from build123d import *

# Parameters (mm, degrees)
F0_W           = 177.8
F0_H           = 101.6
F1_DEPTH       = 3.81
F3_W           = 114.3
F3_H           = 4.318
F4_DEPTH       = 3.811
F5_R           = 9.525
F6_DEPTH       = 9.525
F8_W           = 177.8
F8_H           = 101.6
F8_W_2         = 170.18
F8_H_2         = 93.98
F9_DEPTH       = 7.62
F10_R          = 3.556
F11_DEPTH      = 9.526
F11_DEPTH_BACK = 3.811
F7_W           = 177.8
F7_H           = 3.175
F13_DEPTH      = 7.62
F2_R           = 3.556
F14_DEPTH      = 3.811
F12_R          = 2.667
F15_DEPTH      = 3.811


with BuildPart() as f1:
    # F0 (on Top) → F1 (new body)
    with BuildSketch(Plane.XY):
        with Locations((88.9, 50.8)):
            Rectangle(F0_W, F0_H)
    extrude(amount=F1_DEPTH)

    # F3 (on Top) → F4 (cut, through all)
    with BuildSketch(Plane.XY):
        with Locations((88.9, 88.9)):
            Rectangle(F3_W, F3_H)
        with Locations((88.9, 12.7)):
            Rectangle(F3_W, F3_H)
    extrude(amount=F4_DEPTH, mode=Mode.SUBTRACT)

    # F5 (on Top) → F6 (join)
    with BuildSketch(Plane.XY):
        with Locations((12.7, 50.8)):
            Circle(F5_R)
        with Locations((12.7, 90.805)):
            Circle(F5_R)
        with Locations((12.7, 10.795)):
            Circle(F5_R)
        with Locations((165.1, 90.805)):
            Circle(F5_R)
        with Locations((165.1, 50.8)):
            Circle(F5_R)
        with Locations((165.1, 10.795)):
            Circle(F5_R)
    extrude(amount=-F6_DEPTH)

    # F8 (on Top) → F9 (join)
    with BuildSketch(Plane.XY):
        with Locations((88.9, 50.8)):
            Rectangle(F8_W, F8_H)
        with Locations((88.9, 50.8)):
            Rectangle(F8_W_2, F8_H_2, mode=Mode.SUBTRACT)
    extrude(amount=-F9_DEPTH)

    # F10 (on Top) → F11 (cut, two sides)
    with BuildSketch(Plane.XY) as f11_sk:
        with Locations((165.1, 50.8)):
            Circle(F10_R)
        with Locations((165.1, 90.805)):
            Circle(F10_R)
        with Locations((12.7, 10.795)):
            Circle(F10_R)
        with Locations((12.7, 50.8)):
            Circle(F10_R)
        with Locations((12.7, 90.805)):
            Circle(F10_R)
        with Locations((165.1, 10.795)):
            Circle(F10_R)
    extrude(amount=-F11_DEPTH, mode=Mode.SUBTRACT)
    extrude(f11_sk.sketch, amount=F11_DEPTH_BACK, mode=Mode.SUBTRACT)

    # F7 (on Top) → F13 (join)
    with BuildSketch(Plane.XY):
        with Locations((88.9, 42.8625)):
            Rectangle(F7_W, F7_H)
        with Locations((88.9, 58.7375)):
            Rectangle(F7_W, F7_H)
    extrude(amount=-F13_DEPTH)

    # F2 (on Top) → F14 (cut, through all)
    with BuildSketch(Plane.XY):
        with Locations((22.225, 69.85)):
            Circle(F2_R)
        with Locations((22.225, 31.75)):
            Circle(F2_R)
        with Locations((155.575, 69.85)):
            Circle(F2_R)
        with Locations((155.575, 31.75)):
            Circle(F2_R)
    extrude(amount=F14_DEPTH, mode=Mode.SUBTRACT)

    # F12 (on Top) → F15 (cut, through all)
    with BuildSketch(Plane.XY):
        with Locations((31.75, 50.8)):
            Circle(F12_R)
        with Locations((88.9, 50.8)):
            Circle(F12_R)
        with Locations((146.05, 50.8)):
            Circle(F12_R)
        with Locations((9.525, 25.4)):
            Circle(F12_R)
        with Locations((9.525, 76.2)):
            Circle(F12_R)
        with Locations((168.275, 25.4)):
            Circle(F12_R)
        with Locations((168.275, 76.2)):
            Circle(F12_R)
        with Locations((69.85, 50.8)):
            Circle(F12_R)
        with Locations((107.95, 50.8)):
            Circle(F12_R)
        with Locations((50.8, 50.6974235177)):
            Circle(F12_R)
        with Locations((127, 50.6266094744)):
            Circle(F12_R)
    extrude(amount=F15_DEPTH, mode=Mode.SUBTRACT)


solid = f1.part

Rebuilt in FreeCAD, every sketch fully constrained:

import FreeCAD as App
import Part
import Sketcher

V = App.Vector
Q = App.Units.Quantity

doc = App.newDocument("Part")
body = doc.addObject("PartDesign::Body", "Body")

# Sketch on XY plane
sketch1 = body.newObject("Sketcher::SketchObject", "Sketch")
sketch1.AttachmentSupport = (doc.getObject("XY_Plane"), [""])
sketch1.MapMode = "FlatFace"
sketch1.addGeometry(Part.LineSegment(V(0, 102, 0), V(0, 0, 0)), False)
sketch1.addGeometry(Part.LineSegment(V(0, 0, 0), V(178, 0, 0)), False)
sketch1.addGeometry(Part.LineSegment(V(178, 0, 0), V(178, 102, 0)), False)
sketch1.addGeometry(Part.LineSegment(V(178, 102, 0), V(0, 102, 0)), False)
sketch1.addConstraint(Sketcher.Constraint("Coincident", 0, 2, 1, 1))
sketch1.addConstraint(Sketcher.Constraint("Coincident", 1, 2, 2, 1))
sketch1.addConstraint(Sketcher.Constraint("Coincident", 2, 2, 3, 1))
sketch1.addConstraint(Sketcher.Constraint("Coincident", 3, 2, 0, 1))
sketch1.addConstraint(Sketcher.Constraint("Vertical", 0))
sketch1.addConstraint(Sketcher.Constraint("Horizontal", 1))
sketch1.addConstraint(Sketcher.Constraint("Vertical", 2))
sketch1.addConstraint(Sketcher.Constraint("Horizontal", 3))
sketch1.addConstraint(Sketcher.Constraint("Coincident", 0, 2, -1, 1))
sketch1.addConstraint(Sketcher.Constraint("DistanceX", 1, 1, 1, 2, Q("7 in")))
sketch1.addConstraint(Sketcher.Constraint("DistanceY", 0, 2, 0, 1, Q("4 in")))
pad1 = body.newObject("PartDesign::Pad", "Pad")
pad1.Profile = sketch1
pad1.Length = Q("0.15 in")

# Sketch on XY plane
sketch2 = body.newObject("Sketcher::SketchObject", "Sketch001")
sketch2.AttachmentSupport = (doc.getObject("XY_Plane"), [""])
sketch2.MapMode = "FlatFace"
sketch2.addGeometry(Part.LineSegment(V(31.8, 91.1, 0), V(31.8, 86.7, 0)), False)
sketch2.addGeometry(Part.LineSegment(V(31.8, 86.7, 0), V(146.1, 86.7, 0)), False)
sketch2.addGeometry(Part.LineSegment(V(146.1, 86.7, 0), V(146.1, 91.1, 0)), False)
sketch2.addGeometry(Part.LineSegment(V(146.1, 91.1, 0), V(31.8, 91.1, 0)), False)
sketch2.addGeometry(Part.LineSegment(V(31.8, 14.9, 0), V(31.8, 10.5, 0)), False)
sketch2.addGeometry(Part.LineSegment(V(31.8, 10.5, 0), V(146.1, 10.5, 0)), False)
sketch2.addGeometry(Part.LineSegment(V(146.1, 10.5, 0), V(146.1, 14.9, 0)), False)
sketch2.addGeometry(Part.LineSegment(V(146.1, 14.9, 0), V(31.8, 14.9, 0)), False)
sketch2.addConstraint(Sketcher.Constraint("Coincident", 0, 2, 1, 1))
sketch2.addConstraint(Sketcher.Constraint("Coincident", 1, 2, 2, 1))
sketch2.addConstraint(Sketcher.Constraint("Coincident", 2, 2, 3, 1))
sketch2.addConstraint(Sketcher.Constraint("Coincident", 3, 2, 0, 1))
sketch2.addConstraint(Sketcher.Constraint("Coincident", 4, 2, 5, 1))
sketch2.addConstraint(Sketcher.Constraint("Coincident", 5, 2, 6, 1))
sketch2.addConstraint(Sketcher.Constraint("Coincident", 6, 2, 7, 1))
sketch2.addConstraint(Sketcher.Constraint("Coincident", 7, 2, 4, 1))
sketch2.addConstraint(Sketcher.Constraint("Vertical", 0))
sketch2.addConstraint(Sketcher.Constraint("Horizontal", 1))
sketch2.addConstraint(Sketcher.Constraint("Vertical", 2))
sketch2.addConstraint(Sketcher.Constraint("Horizontal", 3))
sketch2.addConstraint(Sketcher.Constraint("Vertical", 4))
sketch2.addConstraint(Sketcher.Constraint("Horizontal", 5))
sketch2.addConstraint(Sketcher.Constraint("Vertical", 6))
sketch2.addConstraint(Sketcher.Constraint("Horizontal", 7))
sketch2.addConstraint(Sketcher.Constraint("Vertical", 3, 2, 4, 2))
sketch2.addConstraint(Sketcher.Constraint("Vertical", 2, 2, 5, 2))
sketch2.addConstraint(Sketcher.Constraint("Equal", 2, 4))
sketch2.addConstraint(Sketcher.Constraint("DistanceX", 1, 1, 1, 2, Q("4.5 in")))
sketch2.addConstraint(Sketcher.Constraint("DistanceY", 4, 2, 0, 2, Q("3 in")))
sketch2.addConstraint(Sketcher.Constraint("DistanceY", 0, 2, 0, 1, Q("0.17 in")))
sketch2.addConstraint(Sketcher.Constraint("DistanceX", -1, 1, 0, 2, Q("1.25 in")))
sketch2.addConstraint(Sketcher.Constraint("DistanceY", -1, 1, 0, 2, Q("3.415 in")))
pocket1 = body.newObject("PartDesign::Pocket", "Pocket")
pocket1.Profile = sketch2
pocket1.Type = "ThroughAll"
pocket1.Reversed = True

# Sketch on XY plane
sketch3 = body.newObject("Sketcher::SketchObject", "Sketch002")
sketch3.AttachmentSupport = (doc.getObject("XY_Plane"), [""])
sketch3.MapMode = "FlatFace"
sketch3.addGeometry(Part.Circle(V(13, 51, 0), V(0, 0, 1), 10), False)
sketch3.addGeometry(Part.Circle(V(13, 91, 0), V(0, 0, 1), 10), False)
sketch3.addGeometry(Part.Circle(V(13, 11, 0), V(0, 0, 1), 10), False)
sketch3.addGeometry(Part.Circle(V(165, 91, 0), V(0, 0, 1), 10), False)
sketch3.addGeometry(Part.Circle(V(165, 51, 0), V(0, 0, 1), 10), False)
sketch3.addGeometry(Part.Circle(V(165, 11, 0), V(0, 0, 1), 10), False)
sketch3.addConstraint(Sketcher.Constraint("Equal", 0, 1))
sketch3.addConstraint(Sketcher.Constraint("Equal", 1, 2))
sketch3.addConstraint(Sketcher.Constraint("Equal", 2, 3))
sketch3.addConstraint(Sketcher.Constraint("Equal", 3, 4))
sketch3.addConstraint(Sketcher.Constraint("Equal", 4, 5))
sketch3.addConstraint(Sketcher.Constraint("Horizontal", 1, 3, 3, 3))
sketch3.addConstraint(Sketcher.Constraint("Horizontal", 0, 3, 4, 3))
sketch3.addConstraint(Sketcher.Constraint("Horizontal", 2, 3, 5, 3))
sketch3.addConstraint(Sketcher.Constraint("Vertical", 0, 3, 1, 3))
sketch3.addConstraint(Sketcher.Constraint("Vertical", 1, 3, 2, 3))
sketch3.addConstraint(Sketcher.Constraint("Vertical", 3, 3, 4, 3))
sketch3.addConstraint(Sketcher.Constraint("Vertical", 4, 3, 5, 3))
sketch3.addConstraint(Sketcher.Constraint("Diameter", 0, Q("0.75 in")))
sketch3.addConstraint(Sketcher.Constraint("DistanceY", -1, 1, 0, 3, Q("2 in")))
sketch3.addConstraint(Sketcher.Constraint("DistanceX", 1, 3, 3, 3, Q("6 in")))
sketch3.addConstraint(Sketcher.Constraint("DistanceX", -1, 1, 0, 3, Q("0.5 in")))
sketch3.addConstraint(Sketcher.Constraint("DistanceY", 2, 3, 1, 3, Q("3.15 in")))
sketch3.addConstraint(Sketcher.Constraint("DistanceY", -1, 1, 1, 3, Q("3.575 in")))
pad2 = body.newObject("PartDesign::Pad", "Pad001")
pad2.Profile = sketch3
pad2.Length = Q("0.375 in")
pad2.Reversed = True

# Sketch on XY plane
sketch4 = body.newObject("Sketcher::SketchObject", "Sketch003")
sketch4.AttachmentSupport = (doc.getObject("XY_Plane"), [""])
sketch4.MapMode = "FlatFace"
sketch4.addGeometry(Part.LineSegment(V(0, 102, 0), V(0, 0, 0)), False)
sketch4.addGeometry(Part.LineSegment(V(0, 0, 0), V(178, 0, 0)), False)
sketch4.addGeometry(Part.LineSegment(V(178, 0, 0), V(178, 102, 0)), False)
sketch4.addGeometry(Part.LineSegment(V(178, 102, 0), V(0, 102, 0)), False)
sketch4.addGeometry(Part.LineSegment(V(174, 4, 0), V(4, 4, 0)), False)
sketch4.addGeometry(Part.LineSegment(V(4, 4, 0), V(4, 98, 0)), False)
sketch4.addGeometry(Part.LineSegment(V(4, 98, 0), V(174, 98, 0)), False)
sketch4.addGeometry(Part.LineSegment(V(174, 98, 0), V(174, 4, 0)), False)
sketch4.addConstraint(Sketcher.Constraint("Coincident", 0, 2, 1, 1))
sketch4.addConstraint(Sketcher.Constraint("Coincident", 1, 2, 2, 1))
sketch4.addConstraint(Sketcher.Constraint("Coincident", 2, 2, 3, 1))
sketch4.addConstraint(Sketcher.Constraint("Coincident", 3, 2, 0, 1))
sketch4.addConstraint(Sketcher.Constraint("Coincident", 4, 2, 5, 1))
sketch4.addConstraint(Sketcher.Constraint("Coincident", 5, 2, 6, 1))
sketch4.addConstraint(Sketcher.Constraint("Coincident", 6, 2, 7, 1))
sketch4.addConstraint(Sketcher.Constraint("Coincident", 7, 2, 4, 1))
sketch4.addConstraint(Sketcher.Constraint("Vertical", 0))
sketch4.addConstraint(Sketcher.Constraint("Horizontal", 1))
sketch4.addConstraint(Sketcher.Constraint("Vertical", 2))
sketch4.addConstraint(Sketcher.Constraint("Horizontal", 3))
sketch4.addConstraint(Sketcher.Constraint("Horizontal", 4))
sketch4.addConstraint(Sketcher.Constraint("Vertical", 5))
sketch4.addConstraint(Sketcher.Constraint("Horizontal", 6))
sketch4.addConstraint(Sketcher.Constraint("Vertical", 7))
sketch4.addConstraint(Sketcher.Constraint("Coincident", 0, 2, -1, 1))
sketch4.addConstraint(Sketcher.Constraint("DistanceX", 1, 1, 1, 2, Q("7 in")))
sketch4.addConstraint(Sketcher.Constraint("DistanceY", 0, 2, 0, 1, Q("4 in")))
sketch4.addConstraint(Sketcher.Constraint("DistanceX", 4, 2, 4, 1, Q("6.7 in")))
sketch4.addConstraint(Sketcher.Constraint("DistanceY", 5, 1, 5, 2, Q("3.7 in")))
sketch4.addConstraint(Sketcher.Constraint("DistanceX", -1, 1, 4, 2, Q("0.15 in")))
sketch4.addConstraint(Sketcher.Constraint("DistanceY", -1, 1, 4, 2, Q("0.15 in")))
pad3 = body.newObject("PartDesign::Pad", "Pad002")
pad3.Profile = sketch4
pad3.Length = Q("0.3 in")
pad3.Reversed = True

# Sketch on XY plane
sketch5 = body.newObject("Sketcher::SketchObject", "Sketch004")
sketch5.AttachmentSupport = (doc.getObject("XY_Plane"), [""])
sketch5.MapMode = "FlatFace"
sketch5.addGeometry(Part.Circle(V(165.1, 50.8, 0), V(0, 0, 1), 3.6), False)
sketch5.addGeometry(Part.Circle(V(165.1, 90.8, 0), V(0, 0, 1), 3.6), False)
sketch5.addGeometry(Part.Circle(V(12.7, 10.8, 0), V(0, 0, 1), 3.6), False)
sketch5.addGeometry(Part.Circle(V(12.7, 50.8, 0), V(0, 0, 1), 3.6), False)
sketch5.addGeometry(Part.Circle(V(12.7, 90.8, 0), V(0, 0, 1), 3.6), False)
sketch5.addGeometry(Part.Circle(V(165.1, 10.8, 0), V(0, 0, 1), 3.6), False)
sketch5.addConstraint(Sketcher.Constraint("Equal", 0, 1))
sketch5.addConstraint(Sketcher.Constraint("Equal", 1, 2))
sketch5.addConstraint(Sketcher.Constraint("Equal", 2, 3))
sketch5.addConstraint(Sketcher.Constraint("Equal", 3, 4))
sketch5.addConstraint(Sketcher.Constraint("Equal", 4, 5))
sketch5.addConstraint(Sketcher.Constraint("Horizontal", 0, 3, 3, 3))
sketch5.addConstraint(Sketcher.Constraint("Horizontal", 1, 3, 4, 3))
sketch5.addConstraint(Sketcher.Constraint("Horizontal", 2, 3, 5, 3))
sketch5.addConstraint(Sketcher.Constraint("Vertical", 0, 3, 1, 3))
sketch5.addConstraint(Sketcher.Constraint("Vertical", 2, 3, 3, 3))
sketch5.addConstraint(Sketcher.Constraint("Vertical", 3, 3, 4, 3))
sketch5.addConstraint(Sketcher.Constraint("Vertical", 1, 3, 5, 3))
sketch5.addConstraint(Sketcher.Constraint("Diameter", 0, Q("0.28 in")))
sketch5.addConstraint(Sketcher.Constraint("DistanceY", -1, 1, 0, 3, Q("2 in")))
sketch5.addConstraint(Sketcher.Constraint("DistanceX", 2, 3, 0, 3, Q("6 in")))
sketch5.addConstraint(Sketcher.Constraint("DistanceX", -1, 1, 0, 3, Q("6.5 in")))
sketch5.addConstraint(Sketcher.Constraint("DistanceY", 2, 3, 1, 3, Q("3.15 in")))
sketch5.addConstraint(Sketcher.Constraint("DistanceY", -1, 1, 1, 3, Q("3.575 in")))
pocket2 = body.newObject("PartDesign::Pocket", "Pocket001")
pocket2.Profile = sketch5
pocket2.Type = "ThroughAll"
pocket2.Midplane = True

# Sketch on XY plane
sketch6 = body.newObject("Sketcher::SketchObject", "Sketch005")
sketch6.AttachmentSupport = (doc.getObject("XY_Plane"), [""])
sketch6.MapMode = "FlatFace"
sketch6.addGeometry(Part.LineSegment(V(0, 44.5, 0), V(0, 41.3, 0)), False)
sketch6.addGeometry(Part.LineSegment(V(0, 41.3, 0), V(177.8, 41.3, 0)), False)
sketch6.addGeometry(Part.LineSegment(V(177.8, 41.3, 0), V(177.8, 44.5, 0)), False)
sketch6.addGeometry(Part.LineSegment(V(177.8, 44.5, 0), V(0, 44.5, 0)), False)
sketch6.addGeometry(Part.LineSegment(V(0, 60.3, 0), V(0, 57.1, 0)), False)
sketch6.addGeometry(Part.LineSegment(V(0, 57.1, 0), V(177.8, 57.1, 0)), False)
sketch6.addGeometry(Part.LineSegment(V(177.8, 57.1, 0), V(177.8, 60.3, 0)), False)
sketch6.addGeometry(Part.LineSegment(V(177.8, 60.3, 0), V(0, 60.3, 0)), False)
sketch6.addConstraint(Sketcher.Constraint("Coincident", 0, 2, 1, 1))
sketch6.addConstraint(Sketcher.Constraint("Coincident", 1, 2, 2, 1))
sketch6.addConstraint(Sketcher.Constraint("Coincident", 2, 2, 3, 1))
sketch6.addConstraint(Sketcher.Constraint("Coincident", 3, 2, 0, 1))
sketch6.addConstraint(Sketcher.Constraint("Coincident", 4, 2, 5, 1))
sketch6.addConstraint(Sketcher.Constraint("Coincident", 5, 2, 6, 1))
sketch6.addConstraint(Sketcher.Constraint("Coincident", 6, 2, 7, 1))
sketch6.addConstraint(Sketcher.Constraint("Coincident", 7, 2, 4, 1))
sketch6.addConstraint(Sketcher.Constraint("Vertical", 0))
sketch6.addConstraint(Sketcher.Constraint("Horizontal", 1))
sketch6.addConstraint(Sketcher.Constraint("Vertical", 2))
sketch6.addConstraint(Sketcher.Constraint("Horizontal", 3))
sketch6.addConstraint(Sketcher.Constraint("Vertical", 4))
sketch6.addConstraint(Sketcher.Constraint("Horizontal", 5))
sketch6.addConstraint(Sketcher.Constraint("Vertical", 6))
sketch6.addConstraint(Sketcher.Constraint("Horizontal", 7))
sketch6.addConstraint(Sketcher.Constraint("PointOnObject", 0, 2, -2))
sketch6.addConstraint(Sketcher.Constraint("PointOnObject", 4, 2, -2))
sketch6.addConstraint(Sketcher.Constraint("Vertical", 2, 2, 5, 2))
sketch6.addConstraint(Sketcher.Constraint("Equal", 2, 4))
sketch6.addConstraint(Sketcher.Constraint("DistanceX", 1, 1, 1, 2, Q("7 in")))
sketch6.addConstraint(Sketcher.Constraint("DistanceY", 3, 2, 4, 2, Q("0.5 in")))
sketch6.addConstraint(Sketcher.Constraint("DistanceY", 0, 2, 0, 1, Q("0.125 in")))
sketch6.addConstraint(Sketcher.Constraint("DistanceY", -1, 1, 2, 2, Q("1.75 in")))
pad4 = body.newObject("PartDesign::Pad", "Pad003")
pad4.Profile = sketch6
pad4.Length = Q("0.3 in")
pad4.Reversed = True

# Sketch on XY plane
sketch7 = body.newObject("Sketcher::SketchObject", "Sketch006")
sketch7.AttachmentSupport = (doc.getObject("XY_Plane"), [""])
sketch7.MapMode = "FlatFace"
sketch7.addGeometry(Part.Circle(V(22.2, 69.8, 0), V(0, 0, 1), 3.6), False)
sketch7.addGeometry(Part.Circle(V(22.2, 31.8, 0), V(0, 0, 1), 3.6), False)
sketch7.addGeometry(Part.Circle(V(155.6, 69.8, 0), V(0, 0, 1), 3.6), False)
sketch7.addGeometry(Part.Circle(V(155.6, 31.8, 0), V(0, 0, 1), 3.6), False)
sketch7.addConstraint(Sketcher.Constraint("Equal", 0, 1))
sketch7.addConstraint(Sketcher.Constraint("Equal", 1, 2))
sketch7.addConstraint(Sketcher.Constraint("Equal", 2, 3))
sketch7.addConstraint(Sketcher.Constraint("Horizontal", 0, 3, 2, 3))
sketch7.addConstraint(Sketcher.Constraint("Horizontal", 1, 3, 3, 3))
sketch7.addConstraint(Sketcher.Constraint("Vertical", 0, 3, 1, 3))
sketch7.addConstraint(Sketcher.Constraint("Vertical", 2, 3, 3, 3))
sketch7.addConstraint(Sketcher.Constraint("Diameter", 0, Q("0.28 in")))
sketch7.addConstraint(Sketcher.Constraint("DistanceY", 1, 3, 0, 3, Q("1.5 in")))
sketch7.addConstraint(Sketcher.Constraint("DistanceY", -1, 1, 0, 3, Q("2.75 in")))
sketch7.addConstraint(Sketcher.Constraint("DistanceX", 0, 3, 2, 3, Q("5.25 in")))
sketch7.addConstraint(Sketcher.Constraint("DistanceX", -1, 1, 0, 3, Q("0.875 in")))
pocket3 = body.newObject("PartDesign::Pocket", "Pocket002")
pocket3.Profile = sketch7
pocket3.Type = "ThroughAll"
pocket3.Reversed = True

# Sketch on XY plane
sketch8 = body.newObject("Sketcher::SketchObject", "Sketch007")
sketch8.AttachmentSupport = (doc.getObject("XY_Plane"), [""])
sketch8.MapMode = "FlatFace"
sketch8.addGeometry(Part.Circle(V(31.8, 50.8, 0), V(0, 0, 1), 2.7), False)
sketch8.addGeometry(Part.Circle(V(88.9, 50.8, 0), V(0, 0, 1), 2.7), False)
sketch8.addGeometry(Part.Circle(V(146.1, 50.8, 0), V(0, 0, 1), 2.7), False)
sketch8.addGeometry(Part.Circle(V(9.5, 25.4, 0), V(0, 0, 1), 2.7), False)
sketch8.addGeometry(Part.Circle(V(9.5, 76.2, 0), V(0, 0, 1), 2.7), False)
sketch8.addGeometry(Part.Circle(V(168.3, 25.4, 0), V(0, 0, 1), 2.7), False)
sketch8.addGeometry(Part.Circle(V(168.3, 76.2, 0), V(0, 0, 1), 2.7), False)
sketch8.addGeometry(Part.Circle(V(69.8, 50.8, 0), V(0, 0, 1), 2.7), False)
sketch8.addGeometry(Part.Circle(V(108, 50.8, 0), V(0, 0, 1), 2.7), False)
sketch8.addGeometry(Part.Circle(V(50.8, 50.7, 0), V(0, 0, 1), 2.7), False)
sketch8.addGeometry(Part.Circle(V(127, 50.6, 0), V(0, 0, 1), 2.7), False)
sketch8.addConstraint(Sketcher.Constraint("Equal", 0, 1))
sketch8.addConstraint(Sketcher.Constraint("Equal", 1, 2))
sketch8.addConstraint(Sketcher.Constraint("Equal", 2, 3))
sketch8.addConstraint(Sketcher.Constraint("Equal", 3, 4))
sketch8.addConstraint(Sketcher.Constraint("Equal", 4, 5))
sketch8.addConstraint(Sketcher.Constraint("Equal", 5, 6))
sketch8.addConstraint(Sketcher.Constraint("Equal", 6, 7))
sketch8.addConstraint(Sketcher.Constraint("Equal", 7, 8))
sketch8.addConstraint(Sketcher.Constraint("Equal", 8, 9))
sketch8.addConstraint(Sketcher.Constraint("Equal", 9, 10))
sketch8.addConstraint(Sketcher.Constraint("Horizontal", 0, 3, 1, 3))
sketch8.addConstraint(Sketcher.Constraint("Horizontal", 1, 3, 2, 3))
sketch8.addConstraint(Sketcher.Constraint("Horizontal", 3, 3, 5, 3))
sketch8.addConstraint(Sketcher.Constraint("Horizontal", 4, 3, 6, 3))
sketch8.addConstraint(Sketcher.Constraint("Horizontal", 2, 3, 7, 3))
sketch8.addConstraint(Sketcher.Constraint("Horizontal", 7, 3, 8, 3))
sketch8.addConstraint(Sketcher.Constraint("Vertical", 3, 3, 4, 3))
sketch8.addConstraint(Sketcher.Constraint("Vertical", 5, 3, 6, 3))
sketch8.addConstraint(Sketcher.Constraint("Diameter", 0, Q("0.21 in")))
sketch8.addConstraint(Sketcher.Constraint("DistanceY", -1, 1, 0, 3, Q("2 in")))
sketch8.addConstraint(Sketcher.Constraint("DistanceY", -1, 1, 3, 3, Q("1 in")))
sketch8.addConstraint(Sketcher.Constraint("DistanceY", -1, 1, 4, 3, Q("3 in")))
sketch8.addConstraint(Sketcher.Constraint("DistanceX", -1, 1, 9, 3, Q("2 in")))
sketch8.addConstraint(Sketcher.Constraint("DistanceX", -1, 1, 10, 3, Q("5 in")))
sketch8.addConstraint(Sketcher.Constraint("DistanceX", 7, 3, 2, 3, Q("3 in")))
sketch8.addConstraint(Sketcher.Constraint("DistanceX", -1, 1, 1, 3, Q("3.5 in")))
sketch8.addConstraint(Sketcher.Constraint("DistanceX", 0, 3, 2, 3, Q("4.5 in")))
sketch8.addConstraint(Sketcher.Constraint("DistanceX", 8, 3, 2, 3, Q("1.5 in")))
sketch8.addConstraint(Sketcher.Constraint("DistanceX", -1, 1, 0, 3, Q("1.25 in")))
sketch8.addConstraint(Sketcher.Constraint("DistanceX", 3, 3, 5, 3, Q("6.25 in")))
sketch8.addConstraint(Sketcher.Constraint("DistanceX", -1, 1, 3, 3, Q("0.375 in")))
sketch8.addConstraint(Sketcher.Constraint("DistanceY", -1, 1, 10, 3, Q("50.626609 mm")))
sketch8.addConstraint(Sketcher.Constraint("DistanceY", -1, 1, 9, 3, Q("50.697424 mm")))
pocket4 = body.newObject("PartDesign::Pocket", "Pocket003")
pocket4.Profile = sketch8
pocket4.Type = "ThroughAll"
pocket4.Reversed = True

doc.recompute()
